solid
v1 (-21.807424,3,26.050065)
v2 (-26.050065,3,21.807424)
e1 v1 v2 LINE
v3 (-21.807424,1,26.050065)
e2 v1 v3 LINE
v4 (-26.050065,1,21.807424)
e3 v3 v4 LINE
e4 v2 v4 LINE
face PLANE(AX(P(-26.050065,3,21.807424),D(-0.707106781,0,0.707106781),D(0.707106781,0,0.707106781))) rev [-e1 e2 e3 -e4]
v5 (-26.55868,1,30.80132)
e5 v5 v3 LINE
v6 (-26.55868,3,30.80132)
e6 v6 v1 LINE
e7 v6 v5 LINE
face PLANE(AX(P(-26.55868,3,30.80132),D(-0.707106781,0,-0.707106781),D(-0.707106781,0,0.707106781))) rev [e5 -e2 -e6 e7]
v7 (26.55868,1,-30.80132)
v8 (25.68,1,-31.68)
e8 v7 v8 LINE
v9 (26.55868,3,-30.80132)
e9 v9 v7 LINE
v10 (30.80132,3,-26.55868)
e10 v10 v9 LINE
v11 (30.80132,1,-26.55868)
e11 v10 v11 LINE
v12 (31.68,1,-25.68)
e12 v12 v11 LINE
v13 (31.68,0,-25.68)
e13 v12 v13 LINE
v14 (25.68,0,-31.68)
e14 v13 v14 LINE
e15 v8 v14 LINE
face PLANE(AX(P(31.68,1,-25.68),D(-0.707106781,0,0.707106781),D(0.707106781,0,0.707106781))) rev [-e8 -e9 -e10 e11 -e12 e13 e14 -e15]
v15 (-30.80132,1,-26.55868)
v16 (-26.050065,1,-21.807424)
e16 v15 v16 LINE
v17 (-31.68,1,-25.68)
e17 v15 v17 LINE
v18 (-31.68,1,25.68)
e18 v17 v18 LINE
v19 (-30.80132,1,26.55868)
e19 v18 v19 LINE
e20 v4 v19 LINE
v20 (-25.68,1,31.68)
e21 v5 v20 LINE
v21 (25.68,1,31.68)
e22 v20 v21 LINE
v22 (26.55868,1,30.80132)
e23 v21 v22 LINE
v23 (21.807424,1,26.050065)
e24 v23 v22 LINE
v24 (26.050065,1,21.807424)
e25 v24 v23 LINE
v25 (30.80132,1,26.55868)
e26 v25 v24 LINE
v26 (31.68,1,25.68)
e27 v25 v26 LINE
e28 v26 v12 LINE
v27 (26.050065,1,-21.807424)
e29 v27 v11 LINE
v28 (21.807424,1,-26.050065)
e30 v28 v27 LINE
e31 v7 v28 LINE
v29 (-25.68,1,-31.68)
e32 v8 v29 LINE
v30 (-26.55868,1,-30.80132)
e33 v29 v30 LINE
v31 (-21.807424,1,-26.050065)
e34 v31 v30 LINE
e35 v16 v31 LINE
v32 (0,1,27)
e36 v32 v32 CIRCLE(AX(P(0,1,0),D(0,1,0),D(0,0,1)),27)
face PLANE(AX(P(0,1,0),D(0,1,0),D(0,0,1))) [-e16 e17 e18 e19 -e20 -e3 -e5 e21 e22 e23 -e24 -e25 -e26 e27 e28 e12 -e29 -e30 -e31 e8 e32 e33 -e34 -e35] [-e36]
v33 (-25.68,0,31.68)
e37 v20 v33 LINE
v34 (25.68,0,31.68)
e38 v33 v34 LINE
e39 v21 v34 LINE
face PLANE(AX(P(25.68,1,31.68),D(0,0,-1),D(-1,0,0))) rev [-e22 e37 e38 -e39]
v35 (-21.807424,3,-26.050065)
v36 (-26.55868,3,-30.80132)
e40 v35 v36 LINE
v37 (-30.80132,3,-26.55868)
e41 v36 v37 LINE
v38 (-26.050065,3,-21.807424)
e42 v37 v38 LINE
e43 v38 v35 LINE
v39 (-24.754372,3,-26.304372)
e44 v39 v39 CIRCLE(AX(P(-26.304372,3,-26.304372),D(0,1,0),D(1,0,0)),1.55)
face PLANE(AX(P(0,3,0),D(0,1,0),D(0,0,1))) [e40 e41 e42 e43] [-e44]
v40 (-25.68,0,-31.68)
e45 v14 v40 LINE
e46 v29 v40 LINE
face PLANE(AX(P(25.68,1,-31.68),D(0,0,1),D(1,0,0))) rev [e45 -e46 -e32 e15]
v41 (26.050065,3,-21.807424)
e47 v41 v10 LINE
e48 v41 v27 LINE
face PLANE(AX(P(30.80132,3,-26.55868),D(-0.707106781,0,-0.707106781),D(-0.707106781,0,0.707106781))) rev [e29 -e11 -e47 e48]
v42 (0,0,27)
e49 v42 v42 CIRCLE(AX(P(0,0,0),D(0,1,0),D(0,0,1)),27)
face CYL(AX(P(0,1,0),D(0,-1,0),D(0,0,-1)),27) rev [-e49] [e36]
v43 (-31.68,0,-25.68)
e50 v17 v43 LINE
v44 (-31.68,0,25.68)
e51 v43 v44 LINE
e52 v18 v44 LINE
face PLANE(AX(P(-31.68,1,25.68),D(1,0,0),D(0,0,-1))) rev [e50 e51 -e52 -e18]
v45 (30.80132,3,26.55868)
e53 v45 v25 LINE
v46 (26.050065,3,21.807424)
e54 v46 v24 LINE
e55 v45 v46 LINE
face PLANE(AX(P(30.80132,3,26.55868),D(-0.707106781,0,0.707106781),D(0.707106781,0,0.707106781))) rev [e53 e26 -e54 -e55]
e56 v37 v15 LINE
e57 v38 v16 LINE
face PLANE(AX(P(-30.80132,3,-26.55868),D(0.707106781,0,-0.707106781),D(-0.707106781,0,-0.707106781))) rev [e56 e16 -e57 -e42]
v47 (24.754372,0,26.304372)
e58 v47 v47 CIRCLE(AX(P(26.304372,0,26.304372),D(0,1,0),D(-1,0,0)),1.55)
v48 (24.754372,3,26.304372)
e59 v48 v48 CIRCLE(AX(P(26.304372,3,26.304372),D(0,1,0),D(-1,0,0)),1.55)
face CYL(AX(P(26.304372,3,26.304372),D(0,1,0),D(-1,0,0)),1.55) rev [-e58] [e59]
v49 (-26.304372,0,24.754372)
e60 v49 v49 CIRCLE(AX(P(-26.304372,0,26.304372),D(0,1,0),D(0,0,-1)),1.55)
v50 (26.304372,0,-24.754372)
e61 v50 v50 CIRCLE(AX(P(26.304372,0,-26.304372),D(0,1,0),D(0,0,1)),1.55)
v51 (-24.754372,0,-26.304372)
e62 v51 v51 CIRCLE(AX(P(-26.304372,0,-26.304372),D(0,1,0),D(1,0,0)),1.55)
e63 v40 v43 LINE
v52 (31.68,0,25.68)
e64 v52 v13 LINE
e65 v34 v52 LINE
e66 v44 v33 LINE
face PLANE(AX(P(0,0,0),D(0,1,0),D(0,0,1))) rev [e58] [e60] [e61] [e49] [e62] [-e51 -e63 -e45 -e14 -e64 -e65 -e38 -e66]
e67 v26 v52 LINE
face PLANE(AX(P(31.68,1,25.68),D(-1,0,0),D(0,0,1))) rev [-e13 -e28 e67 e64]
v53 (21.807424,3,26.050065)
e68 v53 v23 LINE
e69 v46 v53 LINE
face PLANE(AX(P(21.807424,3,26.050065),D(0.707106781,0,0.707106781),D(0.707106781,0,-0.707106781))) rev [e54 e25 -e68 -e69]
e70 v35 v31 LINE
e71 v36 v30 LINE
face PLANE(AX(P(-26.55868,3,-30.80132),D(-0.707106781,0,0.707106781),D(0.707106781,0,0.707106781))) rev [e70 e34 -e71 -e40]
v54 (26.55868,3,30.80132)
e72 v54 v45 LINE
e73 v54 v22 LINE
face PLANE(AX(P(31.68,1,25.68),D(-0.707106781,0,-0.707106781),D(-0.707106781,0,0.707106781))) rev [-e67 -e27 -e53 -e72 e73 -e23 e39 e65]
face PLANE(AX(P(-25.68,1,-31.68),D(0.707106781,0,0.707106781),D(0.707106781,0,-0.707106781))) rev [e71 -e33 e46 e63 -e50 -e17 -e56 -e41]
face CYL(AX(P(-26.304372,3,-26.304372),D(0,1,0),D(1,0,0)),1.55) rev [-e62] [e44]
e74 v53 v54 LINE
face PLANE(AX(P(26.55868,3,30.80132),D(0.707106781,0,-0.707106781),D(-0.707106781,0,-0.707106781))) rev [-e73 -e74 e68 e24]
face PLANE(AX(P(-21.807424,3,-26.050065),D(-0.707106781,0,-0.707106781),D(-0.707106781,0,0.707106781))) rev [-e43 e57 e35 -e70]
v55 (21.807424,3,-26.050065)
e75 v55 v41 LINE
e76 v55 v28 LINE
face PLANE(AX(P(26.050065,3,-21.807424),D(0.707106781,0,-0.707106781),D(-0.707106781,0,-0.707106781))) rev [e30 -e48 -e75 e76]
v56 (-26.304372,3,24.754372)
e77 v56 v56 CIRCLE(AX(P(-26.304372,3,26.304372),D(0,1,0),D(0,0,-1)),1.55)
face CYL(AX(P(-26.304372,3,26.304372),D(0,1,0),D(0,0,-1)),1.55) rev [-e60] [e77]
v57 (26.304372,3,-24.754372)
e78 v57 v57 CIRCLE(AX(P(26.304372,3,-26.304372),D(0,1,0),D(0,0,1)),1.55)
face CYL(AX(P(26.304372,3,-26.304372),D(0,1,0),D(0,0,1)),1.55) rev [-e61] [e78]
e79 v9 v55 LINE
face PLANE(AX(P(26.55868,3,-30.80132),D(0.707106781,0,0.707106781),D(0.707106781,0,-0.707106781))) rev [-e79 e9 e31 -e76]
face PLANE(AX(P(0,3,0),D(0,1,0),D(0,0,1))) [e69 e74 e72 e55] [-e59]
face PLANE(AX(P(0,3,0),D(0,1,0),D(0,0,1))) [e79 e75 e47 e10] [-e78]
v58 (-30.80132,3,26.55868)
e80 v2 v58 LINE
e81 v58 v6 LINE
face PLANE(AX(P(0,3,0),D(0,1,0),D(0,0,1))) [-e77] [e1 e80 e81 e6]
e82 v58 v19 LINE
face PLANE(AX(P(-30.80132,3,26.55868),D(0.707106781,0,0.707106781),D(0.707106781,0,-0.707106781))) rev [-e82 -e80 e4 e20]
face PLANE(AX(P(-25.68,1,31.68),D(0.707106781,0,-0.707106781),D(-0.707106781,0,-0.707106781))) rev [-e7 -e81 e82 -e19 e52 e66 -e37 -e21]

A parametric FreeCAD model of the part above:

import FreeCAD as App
import Part
import Sketcher

V = App.Vector


def add_polygon(sketch, points):
    """Adds a closed chain of lines whose ends are joined by coincident constraints."""
    first, n = sketch.GeometryCount, len(points)
    for a, b in zip(points, points[1:] + points[:1]):
        sketch.addGeometry(Part.LineSegment(App.Vector(*a, 0), App.Vector(*b, 0)), False)
    for i in range(n):
        sketch.addConstraint(Sketcher.Constraint("Coincident", first + i, 2, first + (i + 1) % n, 1))

doc = App.newDocument("Part")
body = doc.addObject("PartDesign::Body", "Body")

# Sketch on XZ plane
sketch1 = body.newObject("Sketcher::SketchObject", "Sketch")
sketch1.AttachmentSupport = (doc.getObject("XZ_Plane"), [""])
sketch1.MapMode = "FlatFace"
add_polygon(sketch1, [(32, -26), (26, -32), (-26, -32), (-32, -26), (-32, 26), (-26, 32), (26, 32), (32, 26)])  # lines 0-7
sketch1.addGeometry(Part.Circle(V(0, 0, 0), V(0, 0, 1), 27), False)  # 8
sketch1.addConstraint([
    Sketcher.Constraint("Horizontal", 1),
    Sketcher.Constraint("Vertical", 3),
    Sketcher.Constraint("Horizontal", 5),
    Sketcher.Constraint("Vertical", 7),
    Sketcher.Constraint("Coincident", 8, 3, -1, 1),
    Sketcher.Constraint("Symmetric", 0, 2, 4, 2, -1, 1),
    Sketcher.Constraint("Symmetric", 2, 2, 6, 2, -1, 1),
    Sketcher.Constraint("Perpendicular", 0, 2),
    Sketcher.Constraint("Perpendicular", 2, 4),
    Sketcher.Constraint("Perpendicular", 4, 6),
    Sketcher.Constraint("Horizontal", 3, 2, 6, 2),
    Sketcher.Constraint("Vertical", 1, 2, 4, 2),
    Sketcher.Constraint("Equal", 5, 3),
    Sketcher.Constraint("Diameter", 8, 54.0),
    Sketcher.Constraint("DistanceX", 2, 2, 1, 2, 6.0),
    Sketcher.Constraint("DistanceX", 1, 2, 1, 1, 51.36),
])
pad1 = body.newObject("PartDesign::Pad", "Pad")
pad1.Profile = sketch1
pad1.Length = 1
pad1.Reversed = True

# Sketch on XZ plane
sketch2 = body.newObject("Sketcher::SketchObject", "Sketch001")
sketch2.AttachmentSupport = (doc.getObject("XZ_Plane"), [""])
sketch2.MapMode = "FlatFace"
sketch2.AttachmentOffset = App.Placement(V(0, 0, -1), App.Rotation())
add_polygon(sketch2, [(26, -22), (31, -27), (27, -31), (22, -26)])  # lines 0-3
add_polygon(sketch2, [(31, 27), (26, 22), (22, 26), (27, 31)])  # lines 4-7
add_polygon(sketch2, [(-27, 31), (-22, 26), (-26, 22), (-31, 27)])  # lines 8-11
add_polygon(sketch2, [(-31, -27), (-26, -22), (-22, -26), (-27, -31)])  # lines 12-15
sketch2.addConstraint([
    Sketcher.Constraint("Symmetric", 2, 2, 8, 2, -1, 1),
    Sketcher.Constraint("Symmetric", 3, 2, 9, 2, -1, 1),
    Sketcher.Constraint("Symmetric", 0, 2, 10, 2, -1, 1),
    Sketcher.Constraint("Symmetric", 1, 2, 11, 2, -1, 1),
    Sketcher.Constraint("Symmetric", 4, 2, 12, 2, -1, 1),
    Sketcher.Constraint("Symmetric", 5, 2, 13, 2, -1, 1),
    Sketcher.Constraint("Symmetric", 6, 2, 14, 2, -1, 1),
    Sketcher.Constraint("Symmetric", 7, 2, 15, 2, -1, 1),
    Sketcher.Constraint("Symmetric", 5, 2, 8, 2, -2),
    Sketcher.Constraint("Symmetric", 4, 2, 9, 2, -2),
    Sketcher.Constraint("Symmetric", 7, 2, 10, 2, -2),
    Sketcher.Constraint("Symmetric", 6, 2, 11, 2, -2),
    Sketcher.Constraint("Perpendicular", 0, 1),
    Sketcher.Constraint("Perpendicular", 1, 2),
    Sketcher.Constraint("Perpendicular", 2, 3),
    Sketcher.Constraint("Parallel", 3, 4),
    Sketcher.Constraint("Distance", 1, 6.0),
    Sketcher.Constraint("DistanceY", 0, 2, 6, 2, 57.36),
    Sketcher.Constraint("DistanceX", 10, 2, 6, 2, 57.36),
    Sketcher.Constraint("Distance", 0, 6.71929),
])
pad2 = body.newObject("PartDesign::Pad", "Pad001")
pad2.Profile = sketch2
pad2.Length = 2
pad2.Reversed = True

# Sketch on XZ plane
sketch3 = body.newObject("Sketcher::SketchObject", "Sketch002")
sketch3.AttachmentSupport = (doc.getObject("XZ_Plane"), [""])
sketch3.MapMode = "FlatFace"
sketch3.AttachmentOffset = App.Placement(V(0, 0, -3), App.Rotation())
sketch3.addGeometry(Part.Circle(V(26.3, -26.3, 0), V(0, 0, 1), 1.6), False)
sketch3.addConstraint([
    Sketcher.Constraint("Diameter", 0, 3.1),
    Sketcher.Constraint("DistanceX", -1, 1, 0, 3, 26.304372),
    Sketcher.Constraint("DistanceY", 0, 3, -1, 1, 26.304372),
])
doc.recompute()
hole = body.newObject("PartDesign::Hole", "Hole")
hole.Profile = sketch3
hole.ThreadType = "None"
hole.Diameter = 3.1
hole.DepthType = "ThroughAll"
hole.Reversed = True
doc.recompute()

polarpattern = body.newObject("PartDesign::PolarPattern", "PolarPattern")
polarpattern.Originals = [hole]
polarpattern.Axis = (doc.getObject("Y_Axis"), [""])
polarpattern.Angle = 360
polarpattern.Occurrences = 4
body.Tip = polarpattern

doc.recompute()
